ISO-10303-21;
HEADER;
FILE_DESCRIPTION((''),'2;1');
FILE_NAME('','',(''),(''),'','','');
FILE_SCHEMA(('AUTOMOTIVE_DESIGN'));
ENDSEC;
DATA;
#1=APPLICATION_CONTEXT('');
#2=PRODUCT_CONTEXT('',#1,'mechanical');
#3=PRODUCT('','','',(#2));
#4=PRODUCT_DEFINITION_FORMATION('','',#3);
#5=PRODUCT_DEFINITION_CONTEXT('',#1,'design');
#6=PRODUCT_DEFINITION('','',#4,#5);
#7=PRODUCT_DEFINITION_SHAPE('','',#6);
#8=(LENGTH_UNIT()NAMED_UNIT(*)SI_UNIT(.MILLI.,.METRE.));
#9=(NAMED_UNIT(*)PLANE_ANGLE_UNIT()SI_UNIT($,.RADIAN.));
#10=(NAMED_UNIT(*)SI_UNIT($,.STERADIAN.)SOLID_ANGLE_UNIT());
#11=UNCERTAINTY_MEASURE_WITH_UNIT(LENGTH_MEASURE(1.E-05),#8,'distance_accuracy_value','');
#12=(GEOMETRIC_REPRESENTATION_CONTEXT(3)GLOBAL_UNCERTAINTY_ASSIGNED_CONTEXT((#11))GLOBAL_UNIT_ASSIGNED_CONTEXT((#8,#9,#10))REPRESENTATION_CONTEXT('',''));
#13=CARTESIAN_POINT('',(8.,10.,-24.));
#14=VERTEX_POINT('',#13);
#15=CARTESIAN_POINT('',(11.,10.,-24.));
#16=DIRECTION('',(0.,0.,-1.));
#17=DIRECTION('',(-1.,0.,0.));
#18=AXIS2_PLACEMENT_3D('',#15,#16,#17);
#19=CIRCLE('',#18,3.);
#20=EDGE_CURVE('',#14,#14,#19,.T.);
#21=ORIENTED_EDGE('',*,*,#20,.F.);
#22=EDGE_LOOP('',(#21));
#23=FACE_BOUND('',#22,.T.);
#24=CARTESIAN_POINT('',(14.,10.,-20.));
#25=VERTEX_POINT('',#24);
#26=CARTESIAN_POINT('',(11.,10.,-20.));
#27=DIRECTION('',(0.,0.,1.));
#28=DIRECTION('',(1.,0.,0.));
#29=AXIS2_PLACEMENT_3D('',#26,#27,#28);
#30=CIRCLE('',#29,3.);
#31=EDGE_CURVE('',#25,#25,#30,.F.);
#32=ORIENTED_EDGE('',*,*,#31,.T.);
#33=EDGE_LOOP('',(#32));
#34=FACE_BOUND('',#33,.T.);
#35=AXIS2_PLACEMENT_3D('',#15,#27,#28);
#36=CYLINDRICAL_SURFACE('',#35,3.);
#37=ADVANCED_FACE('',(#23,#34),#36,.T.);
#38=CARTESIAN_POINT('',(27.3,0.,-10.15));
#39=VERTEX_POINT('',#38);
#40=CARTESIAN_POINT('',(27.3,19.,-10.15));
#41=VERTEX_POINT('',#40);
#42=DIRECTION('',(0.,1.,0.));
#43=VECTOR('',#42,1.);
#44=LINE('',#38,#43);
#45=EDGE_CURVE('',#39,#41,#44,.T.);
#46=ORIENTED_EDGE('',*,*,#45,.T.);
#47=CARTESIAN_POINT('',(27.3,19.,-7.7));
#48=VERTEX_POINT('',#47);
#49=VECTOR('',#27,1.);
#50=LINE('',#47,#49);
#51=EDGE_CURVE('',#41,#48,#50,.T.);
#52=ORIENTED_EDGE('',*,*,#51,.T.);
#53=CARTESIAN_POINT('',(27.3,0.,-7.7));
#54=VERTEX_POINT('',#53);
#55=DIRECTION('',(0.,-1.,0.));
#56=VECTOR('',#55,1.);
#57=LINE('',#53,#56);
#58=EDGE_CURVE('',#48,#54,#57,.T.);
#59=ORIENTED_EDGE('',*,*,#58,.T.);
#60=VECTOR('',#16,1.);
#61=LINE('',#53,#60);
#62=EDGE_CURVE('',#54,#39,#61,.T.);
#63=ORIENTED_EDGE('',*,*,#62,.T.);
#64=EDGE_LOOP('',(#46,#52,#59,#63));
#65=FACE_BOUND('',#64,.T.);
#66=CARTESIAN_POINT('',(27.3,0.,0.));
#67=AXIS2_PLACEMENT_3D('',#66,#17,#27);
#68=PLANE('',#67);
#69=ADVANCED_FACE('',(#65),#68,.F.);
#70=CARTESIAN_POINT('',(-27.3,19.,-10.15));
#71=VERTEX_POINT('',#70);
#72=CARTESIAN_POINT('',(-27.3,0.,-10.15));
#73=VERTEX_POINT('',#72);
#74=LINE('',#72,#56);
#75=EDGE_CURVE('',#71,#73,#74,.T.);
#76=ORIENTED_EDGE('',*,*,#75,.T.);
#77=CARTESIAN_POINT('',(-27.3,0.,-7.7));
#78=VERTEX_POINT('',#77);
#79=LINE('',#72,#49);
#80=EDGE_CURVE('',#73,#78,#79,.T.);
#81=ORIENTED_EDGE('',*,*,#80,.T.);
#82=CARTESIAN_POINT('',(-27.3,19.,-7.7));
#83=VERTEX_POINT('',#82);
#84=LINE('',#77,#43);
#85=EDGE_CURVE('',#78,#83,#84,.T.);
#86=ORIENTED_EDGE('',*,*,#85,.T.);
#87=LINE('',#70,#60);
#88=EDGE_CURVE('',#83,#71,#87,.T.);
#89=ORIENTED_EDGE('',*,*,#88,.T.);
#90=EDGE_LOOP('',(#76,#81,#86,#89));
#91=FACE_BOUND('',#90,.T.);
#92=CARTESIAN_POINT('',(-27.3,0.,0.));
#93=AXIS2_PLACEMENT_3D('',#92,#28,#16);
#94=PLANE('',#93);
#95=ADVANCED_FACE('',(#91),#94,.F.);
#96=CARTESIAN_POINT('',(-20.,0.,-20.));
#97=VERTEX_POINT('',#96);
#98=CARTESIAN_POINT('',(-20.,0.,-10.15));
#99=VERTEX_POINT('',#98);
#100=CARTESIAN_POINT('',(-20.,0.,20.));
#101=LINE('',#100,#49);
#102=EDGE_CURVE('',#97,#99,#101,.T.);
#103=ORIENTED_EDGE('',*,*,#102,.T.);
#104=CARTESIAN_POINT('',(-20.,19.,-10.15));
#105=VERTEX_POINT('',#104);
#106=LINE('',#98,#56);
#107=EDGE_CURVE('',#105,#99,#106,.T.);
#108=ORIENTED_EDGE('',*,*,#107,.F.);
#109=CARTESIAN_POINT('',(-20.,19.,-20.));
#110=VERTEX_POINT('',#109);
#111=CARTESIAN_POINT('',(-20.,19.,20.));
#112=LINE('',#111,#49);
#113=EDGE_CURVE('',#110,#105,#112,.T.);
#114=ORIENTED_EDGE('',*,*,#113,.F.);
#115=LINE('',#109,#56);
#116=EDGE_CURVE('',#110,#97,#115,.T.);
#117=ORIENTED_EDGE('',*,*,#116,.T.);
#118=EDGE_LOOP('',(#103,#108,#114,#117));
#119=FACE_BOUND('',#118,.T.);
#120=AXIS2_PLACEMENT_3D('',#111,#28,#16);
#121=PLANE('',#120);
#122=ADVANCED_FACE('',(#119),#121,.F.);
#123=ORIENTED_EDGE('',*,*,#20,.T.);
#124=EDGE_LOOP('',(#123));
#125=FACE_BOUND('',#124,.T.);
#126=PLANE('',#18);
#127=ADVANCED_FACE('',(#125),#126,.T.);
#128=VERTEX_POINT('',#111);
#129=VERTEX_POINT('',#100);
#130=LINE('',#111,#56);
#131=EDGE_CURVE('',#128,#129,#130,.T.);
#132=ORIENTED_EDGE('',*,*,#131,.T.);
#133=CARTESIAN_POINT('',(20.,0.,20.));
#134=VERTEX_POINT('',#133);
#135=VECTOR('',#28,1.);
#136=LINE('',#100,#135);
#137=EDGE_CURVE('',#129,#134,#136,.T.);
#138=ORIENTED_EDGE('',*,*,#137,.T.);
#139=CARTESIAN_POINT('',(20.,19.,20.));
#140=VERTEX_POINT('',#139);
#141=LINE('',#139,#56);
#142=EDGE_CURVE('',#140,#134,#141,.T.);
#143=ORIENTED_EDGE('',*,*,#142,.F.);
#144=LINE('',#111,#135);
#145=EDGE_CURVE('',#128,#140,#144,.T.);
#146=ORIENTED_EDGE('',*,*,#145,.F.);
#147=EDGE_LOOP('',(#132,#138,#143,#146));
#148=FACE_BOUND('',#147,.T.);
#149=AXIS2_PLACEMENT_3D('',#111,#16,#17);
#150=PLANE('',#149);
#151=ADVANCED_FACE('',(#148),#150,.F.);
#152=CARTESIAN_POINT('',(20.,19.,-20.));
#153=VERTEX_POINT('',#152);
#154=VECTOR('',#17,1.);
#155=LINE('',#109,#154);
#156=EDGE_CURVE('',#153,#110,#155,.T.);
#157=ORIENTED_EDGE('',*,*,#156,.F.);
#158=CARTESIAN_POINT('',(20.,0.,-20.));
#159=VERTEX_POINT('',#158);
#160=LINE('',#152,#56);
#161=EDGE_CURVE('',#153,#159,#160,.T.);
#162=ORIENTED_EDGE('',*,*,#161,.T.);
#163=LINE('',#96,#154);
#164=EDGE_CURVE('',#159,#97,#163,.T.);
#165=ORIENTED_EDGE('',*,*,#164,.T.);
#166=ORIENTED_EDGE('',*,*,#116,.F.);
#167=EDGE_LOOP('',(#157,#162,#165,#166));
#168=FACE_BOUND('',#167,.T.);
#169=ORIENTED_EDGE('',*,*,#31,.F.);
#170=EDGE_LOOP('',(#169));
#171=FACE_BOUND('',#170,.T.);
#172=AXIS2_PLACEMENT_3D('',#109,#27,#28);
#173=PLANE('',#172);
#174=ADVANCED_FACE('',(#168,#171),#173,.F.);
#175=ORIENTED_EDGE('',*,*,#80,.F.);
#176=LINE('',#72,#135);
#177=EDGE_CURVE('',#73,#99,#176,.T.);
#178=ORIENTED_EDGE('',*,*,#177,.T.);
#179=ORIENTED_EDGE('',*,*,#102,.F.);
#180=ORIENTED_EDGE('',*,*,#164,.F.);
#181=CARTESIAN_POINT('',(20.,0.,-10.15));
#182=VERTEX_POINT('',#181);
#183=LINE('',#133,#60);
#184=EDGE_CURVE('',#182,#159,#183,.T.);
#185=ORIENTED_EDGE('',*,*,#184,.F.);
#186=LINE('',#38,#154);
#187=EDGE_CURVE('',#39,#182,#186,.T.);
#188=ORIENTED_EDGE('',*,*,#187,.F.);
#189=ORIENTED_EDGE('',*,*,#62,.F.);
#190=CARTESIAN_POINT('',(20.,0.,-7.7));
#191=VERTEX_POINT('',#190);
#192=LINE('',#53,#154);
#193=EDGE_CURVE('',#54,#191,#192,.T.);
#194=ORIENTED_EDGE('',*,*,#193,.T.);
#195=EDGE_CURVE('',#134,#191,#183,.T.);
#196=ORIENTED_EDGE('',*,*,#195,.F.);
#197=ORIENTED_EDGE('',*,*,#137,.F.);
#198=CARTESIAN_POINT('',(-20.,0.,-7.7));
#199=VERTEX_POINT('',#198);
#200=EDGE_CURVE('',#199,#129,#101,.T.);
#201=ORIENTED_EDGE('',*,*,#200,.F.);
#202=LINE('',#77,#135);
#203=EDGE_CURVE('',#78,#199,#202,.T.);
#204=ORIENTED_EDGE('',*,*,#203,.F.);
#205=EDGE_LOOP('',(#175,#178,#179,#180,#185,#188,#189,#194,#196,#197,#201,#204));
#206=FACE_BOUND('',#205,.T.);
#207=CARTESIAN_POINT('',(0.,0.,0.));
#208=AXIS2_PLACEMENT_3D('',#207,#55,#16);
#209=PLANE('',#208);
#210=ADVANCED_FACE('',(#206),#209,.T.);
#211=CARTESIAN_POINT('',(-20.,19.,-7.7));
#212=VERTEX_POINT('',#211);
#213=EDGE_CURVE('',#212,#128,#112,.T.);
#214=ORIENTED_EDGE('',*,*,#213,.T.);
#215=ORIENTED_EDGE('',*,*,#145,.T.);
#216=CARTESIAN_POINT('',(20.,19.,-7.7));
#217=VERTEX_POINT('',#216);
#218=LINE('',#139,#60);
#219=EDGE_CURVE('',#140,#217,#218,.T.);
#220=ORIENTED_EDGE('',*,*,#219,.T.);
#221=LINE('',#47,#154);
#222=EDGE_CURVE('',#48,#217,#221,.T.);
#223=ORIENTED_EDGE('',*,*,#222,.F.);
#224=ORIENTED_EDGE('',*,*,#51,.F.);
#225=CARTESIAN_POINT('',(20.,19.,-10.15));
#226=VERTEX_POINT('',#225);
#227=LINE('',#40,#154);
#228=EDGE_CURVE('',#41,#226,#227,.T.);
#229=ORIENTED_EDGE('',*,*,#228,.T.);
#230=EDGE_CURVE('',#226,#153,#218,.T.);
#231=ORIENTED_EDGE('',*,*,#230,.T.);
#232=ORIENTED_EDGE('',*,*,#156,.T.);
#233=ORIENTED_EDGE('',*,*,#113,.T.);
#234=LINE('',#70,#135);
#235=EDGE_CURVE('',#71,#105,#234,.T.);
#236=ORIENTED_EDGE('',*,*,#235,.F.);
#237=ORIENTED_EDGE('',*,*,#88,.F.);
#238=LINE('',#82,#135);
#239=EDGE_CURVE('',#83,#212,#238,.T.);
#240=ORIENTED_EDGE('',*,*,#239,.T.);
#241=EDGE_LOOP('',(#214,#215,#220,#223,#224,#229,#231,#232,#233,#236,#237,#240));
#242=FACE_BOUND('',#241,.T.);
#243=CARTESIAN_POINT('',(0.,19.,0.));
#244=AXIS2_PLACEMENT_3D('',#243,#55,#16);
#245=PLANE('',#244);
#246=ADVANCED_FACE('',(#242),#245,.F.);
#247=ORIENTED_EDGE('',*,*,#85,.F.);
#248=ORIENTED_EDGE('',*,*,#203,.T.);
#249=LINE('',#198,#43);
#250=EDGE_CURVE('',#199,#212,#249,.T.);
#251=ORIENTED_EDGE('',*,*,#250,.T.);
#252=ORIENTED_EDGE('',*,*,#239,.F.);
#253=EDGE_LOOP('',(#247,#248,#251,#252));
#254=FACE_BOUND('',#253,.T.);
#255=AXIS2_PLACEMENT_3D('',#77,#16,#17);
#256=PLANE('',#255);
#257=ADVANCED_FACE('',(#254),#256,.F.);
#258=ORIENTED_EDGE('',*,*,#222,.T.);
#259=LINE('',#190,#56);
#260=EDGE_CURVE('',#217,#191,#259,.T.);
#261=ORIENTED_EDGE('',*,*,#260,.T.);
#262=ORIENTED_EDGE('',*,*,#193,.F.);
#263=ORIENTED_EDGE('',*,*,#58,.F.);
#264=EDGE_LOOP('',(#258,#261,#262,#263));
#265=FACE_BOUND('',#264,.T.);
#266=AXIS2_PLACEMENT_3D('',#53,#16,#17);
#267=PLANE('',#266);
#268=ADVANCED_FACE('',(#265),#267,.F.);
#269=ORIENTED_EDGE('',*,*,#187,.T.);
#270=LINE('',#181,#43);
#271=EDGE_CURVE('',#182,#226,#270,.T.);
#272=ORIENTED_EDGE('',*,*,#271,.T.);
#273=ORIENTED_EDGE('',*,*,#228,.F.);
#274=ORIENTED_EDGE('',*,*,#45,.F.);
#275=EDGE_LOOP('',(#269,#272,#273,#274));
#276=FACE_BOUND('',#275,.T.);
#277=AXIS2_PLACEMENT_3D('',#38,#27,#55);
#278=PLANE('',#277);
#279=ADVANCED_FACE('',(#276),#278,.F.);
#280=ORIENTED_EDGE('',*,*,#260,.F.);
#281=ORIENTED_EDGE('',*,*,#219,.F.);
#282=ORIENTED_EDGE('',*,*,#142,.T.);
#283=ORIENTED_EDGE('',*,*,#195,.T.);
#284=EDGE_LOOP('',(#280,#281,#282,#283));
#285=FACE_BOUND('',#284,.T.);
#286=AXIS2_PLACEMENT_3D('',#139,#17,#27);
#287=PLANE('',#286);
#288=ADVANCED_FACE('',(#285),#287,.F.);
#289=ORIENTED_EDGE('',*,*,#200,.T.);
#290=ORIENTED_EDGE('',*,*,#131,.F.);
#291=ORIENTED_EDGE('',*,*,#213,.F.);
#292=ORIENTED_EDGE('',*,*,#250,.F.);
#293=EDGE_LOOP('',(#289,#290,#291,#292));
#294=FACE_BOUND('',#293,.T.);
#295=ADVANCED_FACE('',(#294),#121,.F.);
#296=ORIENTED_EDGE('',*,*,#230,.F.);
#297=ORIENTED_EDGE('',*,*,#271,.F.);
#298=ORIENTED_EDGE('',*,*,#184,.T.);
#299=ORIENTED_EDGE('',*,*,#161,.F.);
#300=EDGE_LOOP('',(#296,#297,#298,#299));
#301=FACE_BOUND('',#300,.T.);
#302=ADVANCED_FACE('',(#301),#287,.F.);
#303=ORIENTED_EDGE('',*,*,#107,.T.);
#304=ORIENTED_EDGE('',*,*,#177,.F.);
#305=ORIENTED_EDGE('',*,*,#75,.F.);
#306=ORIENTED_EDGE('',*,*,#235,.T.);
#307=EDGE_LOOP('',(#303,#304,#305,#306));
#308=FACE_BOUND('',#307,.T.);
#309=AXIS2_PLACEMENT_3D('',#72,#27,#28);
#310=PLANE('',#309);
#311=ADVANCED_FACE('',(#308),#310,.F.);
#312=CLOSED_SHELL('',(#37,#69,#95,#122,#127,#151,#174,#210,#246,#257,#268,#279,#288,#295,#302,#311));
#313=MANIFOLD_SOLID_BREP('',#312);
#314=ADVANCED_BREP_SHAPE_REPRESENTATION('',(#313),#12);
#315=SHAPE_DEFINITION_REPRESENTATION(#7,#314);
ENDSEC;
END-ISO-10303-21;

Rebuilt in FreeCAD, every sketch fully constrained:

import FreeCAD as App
import Part
import Sketcher
Q = App.Units.Quantity

doc = App.newDocument("Part")
params = doc.addObject("Spreadsheet::Sheet", "Params")
for row, (alias, value) in enumerate([
    ("sketch1_width", "40 mm"),
    ("pad1_length", "19 mm"),
    ("sketch2_diameter", "6 mm"),
    ("pad2_length", "4 mm"),
    ("sketch3_width", "19 mm"),
    ("sketch3_height", "2.45 mm"),
    ("pad3_length", "7.3 mm"),
    ("sketch4_width", "19 mm"),
    ("sketch4_height", "2.45 mm"),
    ("pad4_length", "7.3 mm"),
], start=1):
    params.set(f"A{row}", alias)
    params.set(f"B{row}", "=" + value)
    params.setAlias(f"B{row}", alias)

body = doc.addObject("PartDesign::Body", "Body")

sketch1 = body.newObject("Sketcher::SketchObject", "Sketch")
sketch1.AttachmentSupport = (doc.getObject("XZ_Plane"), [""])
sketch1.MapMode = "FlatFace"
sketch1.addGeometry(Part.LineSegment(App.Vector(-20, -20, 0), App.Vector(-20, 20, 0)), False)
sketch1.addGeometry(Part.LineSegment(App.Vector(-20, 20, 0), App.Vector(20, 20, 0)), False)
sketch1.addGeometry(Part.LineSegment(App.Vector(20, 20, 0), App.Vector(20, -20, 0)), False)
sketch1.addGeometry(Part.LineSegment(App.Vector(20, -20, 0), App.Vector(-20, -20, 0)), False)
sketch1.addConstraint(Sketcher.Constraint("Coincident", 0, 2, 1, 1))
sketch1.addConstraint(Sketcher.Constraint("Coincident", 1, 2, 2, 1))
sketch1.addConstraint(Sketcher.Constraint("Coincident", 2, 2, 3, 1))
sketch1.addConstraint(Sketcher.Constraint("Coincident", 3, 2, 0, 1))
sketch1.addConstraint(Sketcher.Constraint("Vertical", 0))
sketch1.addConstraint(Sketcher.Constraint("Horizontal", 1))
sketch1.addConstraint(Sketcher.Constraint("Vertical", 2))
sketch1.addConstraint(Sketcher.Constraint("Horizontal", 3))
sketch1.addConstraint(Sketcher.Constraint("Symmetric", 0, 2, 2, 2, -1, 1))
sketch1.addConstraint(Sketcher.Constraint("Equal", 3, 0))
sketch1.addConstraint(Sketcher.Constraint("DistanceX", 1, 1, 1, 2, Q("40 mm")))
sketch1.setExpression("Constraints[10]", "Params.sketch1_width")
pad1 = body.newObject("PartDesign::Pad", "Pad")
pad1.Profile = sketch1
pad1.setExpression("Length", "Params.pad1_length")
pad1.Reversed = True

sketch2 = body.newObject("Sketcher::SketchObject", "Sketch001")
sketch2.AttachmentSupport = (doc.getObject("XY_Plane"), [""])
sketch2.MapMode = "FlatFace"
sketch2.AttachmentOffset = App.Placement(App.Vector(0, 0, -20), App.Rotation())
sketch2.addGeometry(Part.Circle(App.Vector(11, 10, 0), App.Vector(0, 0, 1), 3), False)
sketch2.addConstraint(Sketcher.Constraint("Diameter", 0, Q("6 mm")))
sketch2.addConstraint(Sketcher.Constraint("DistanceX", -1, 1, 0, 3, Q("11 mm")))
sketch2.addConstraint(Sketcher.Constraint("DistanceY", -1, 1, 0, 3, Q("10 mm")))
sketch2.setExpression("Constraints[0]", "Params.sketch2_diameter")
pad2 = body.newObject("PartDesign::Pad", "Pad001")
pad2.Profile = sketch2
pad2.setExpression("Length", "Params.pad2_length")
pad2.Reversed = True

sketch3 = body.newObject("Sketcher::SketchObject", "Sketch002")
sketch3.AttachmentSupport = (doc.getObject("YZ_Plane"), [""])
sketch3.MapMode = "FlatFace"
sketch3.AttachmentOffset = App.Placement(App.Vector(0, 0, 20), App.Rotation())
sketch3.addGeometry(Part.LineSegment(App.Vector(19, -7.7, 0), App.Vector(0, -7.7, 0)), False)
sketch3.addGeometry(Part.LineSegment(App.Vector(0, -7.7, 0), App.Vector(0, -10.2, 0)), False)
sketch3.addGeometry(Part.LineSegment(App.Vector(0, -10.2, 0), App.Vector(19, -10.2, 0)), False)
sketch3.addGeometry(Part.LineSegment(App.Vector(19, -10.2, 0), App.Vector(19, -7.7, 0)), False)
sketch3.addConstraint(Sketcher.Constraint("Coincident", 0, 2, 1, 1))
sketch3.addConstraint(Sketcher.Constraint("Coincident", 1, 2, 2, 1))
sketch3.addConstraint(Sketcher.Constraint("Coincident", 2, 2, 3, 1))
sketch3.addConstraint(Sketcher.Constraint("Coincident", 3, 2, 0, 1))
sketch3.addConstraint(Sketcher.Constraint("Horizontal", 0))
sketch3.addConstraint(Sketcher.Constraint("Vertical", 1))
sketch3.addConstraint(Sketcher.Constraint("Horizontal", 2))
sketch3.addConstraint(Sketcher.Constraint("Vertical", 3))
sketch3.addConstraint(Sketcher.Constraint("PointOnObject", 0, 2, -2))
sketch3.addConstraint(Sketcher.Constraint("DistanceX", 0, 2, 0, 1, Q("19 mm")))
sketch3.addConstraint(Sketcher.Constraint("DistanceY", 1, 2, 1, 1, Q("2.45 mm")))
sketch3.addConstraint(Sketcher.Constraint("DistanceY", 0, 2, -1, 1, Q("7.7 mm")))
sketch3.setExpression("Constraints[9]", "Params.sketch3_width")
sketch3.setExpression("Constraints[10]", "Params.sketch3_height")
pad3 = body.newObject("PartDesign::Pad", "Pad002")
pad3.Profile = sketch3
pad3.setExpression("Length", "Params.pad3_length")

sketch4 = body.newObject("Sketcher::SketchObject", "Sketch003")
sketch4.AttachmentSupport = (doc.getObject("YZ_Plane"), [""])
sketch4.MapMode = "FlatFace"
sketch4.AttachmentOffset = App.Placement(App.Vector(0, 0, -20), App.Rotation())
sketch4.addGeometry(Part.LineSegment(App.Vector(19, -10.2, 0), App.Vector(0, -10.2, 0)), False)
sketch4.addGeometry(Part.LineSegment(App.Vector(0, -10.2, 0), App.Vector(0, -7.7, 0)), False)
sketch4.addGeometry(Part.LineSegment(App.Vector(0, -7.7, 0), App.Vector(19, -7.7, 0)), False)
sketch4.addGeometry(Part.LineSegment(App.Vector(19, -7.7, 0), App.Vector(19, -10.2, 0)), False)
sketch4.addConstraint(Sketcher.Constraint("Coincident", 0, 2, 1, 1))
sketch4.addConstraint(Sketcher.Constraint("Coincident", 1, 2, 2, 1))
sketch4.addConstraint(Sketcher.Constraint("Coincident", 2, 2, 3, 1))
sketch4.addConstraint(Sketcher.Constraint("Coincident", 3, 2, 0, 1))
sketch4.addConstraint(Sketcher.Constraint("Horizontal", 0))
sketch4.addConstraint(Sketcher.Constraint("Vertical", 1))
sketch4.addConstraint(Sketcher.Constraint("Horizontal", 2))
sketch4.addConstraint(Sketcher.Constraint("Vertical", 3))
sketch4.addConstraint(Sketcher.Constraint("PointOnObject", 0, 2, -2))
sketch4.addConstraint(Sketcher.Constraint("DistanceX", 0, 2, 0, 1, Q("19 mm")))
sketch4.addConstraint(Sketcher.Constraint("DistanceY", 1, 1, 1, 2, Q("2.45 mm")))
sketch4.addConstraint(Sketcher.Constraint("DistanceY", 1, 2, -1, 1, Q("7.7 mm")))
sketch4.setExpression("Constraints[9]", "Params.sketch4_width")
sketch4.setExpression("Constraints[10]", "Params.sketch4_height")
pad4 = body.newObject("PartDesign::Pad", "Pad003")
pad4.Profile = sketch4
pad4.setExpression("Length", "Params.pad4_length")
pad4.Reversed = True

doc.recompute()
